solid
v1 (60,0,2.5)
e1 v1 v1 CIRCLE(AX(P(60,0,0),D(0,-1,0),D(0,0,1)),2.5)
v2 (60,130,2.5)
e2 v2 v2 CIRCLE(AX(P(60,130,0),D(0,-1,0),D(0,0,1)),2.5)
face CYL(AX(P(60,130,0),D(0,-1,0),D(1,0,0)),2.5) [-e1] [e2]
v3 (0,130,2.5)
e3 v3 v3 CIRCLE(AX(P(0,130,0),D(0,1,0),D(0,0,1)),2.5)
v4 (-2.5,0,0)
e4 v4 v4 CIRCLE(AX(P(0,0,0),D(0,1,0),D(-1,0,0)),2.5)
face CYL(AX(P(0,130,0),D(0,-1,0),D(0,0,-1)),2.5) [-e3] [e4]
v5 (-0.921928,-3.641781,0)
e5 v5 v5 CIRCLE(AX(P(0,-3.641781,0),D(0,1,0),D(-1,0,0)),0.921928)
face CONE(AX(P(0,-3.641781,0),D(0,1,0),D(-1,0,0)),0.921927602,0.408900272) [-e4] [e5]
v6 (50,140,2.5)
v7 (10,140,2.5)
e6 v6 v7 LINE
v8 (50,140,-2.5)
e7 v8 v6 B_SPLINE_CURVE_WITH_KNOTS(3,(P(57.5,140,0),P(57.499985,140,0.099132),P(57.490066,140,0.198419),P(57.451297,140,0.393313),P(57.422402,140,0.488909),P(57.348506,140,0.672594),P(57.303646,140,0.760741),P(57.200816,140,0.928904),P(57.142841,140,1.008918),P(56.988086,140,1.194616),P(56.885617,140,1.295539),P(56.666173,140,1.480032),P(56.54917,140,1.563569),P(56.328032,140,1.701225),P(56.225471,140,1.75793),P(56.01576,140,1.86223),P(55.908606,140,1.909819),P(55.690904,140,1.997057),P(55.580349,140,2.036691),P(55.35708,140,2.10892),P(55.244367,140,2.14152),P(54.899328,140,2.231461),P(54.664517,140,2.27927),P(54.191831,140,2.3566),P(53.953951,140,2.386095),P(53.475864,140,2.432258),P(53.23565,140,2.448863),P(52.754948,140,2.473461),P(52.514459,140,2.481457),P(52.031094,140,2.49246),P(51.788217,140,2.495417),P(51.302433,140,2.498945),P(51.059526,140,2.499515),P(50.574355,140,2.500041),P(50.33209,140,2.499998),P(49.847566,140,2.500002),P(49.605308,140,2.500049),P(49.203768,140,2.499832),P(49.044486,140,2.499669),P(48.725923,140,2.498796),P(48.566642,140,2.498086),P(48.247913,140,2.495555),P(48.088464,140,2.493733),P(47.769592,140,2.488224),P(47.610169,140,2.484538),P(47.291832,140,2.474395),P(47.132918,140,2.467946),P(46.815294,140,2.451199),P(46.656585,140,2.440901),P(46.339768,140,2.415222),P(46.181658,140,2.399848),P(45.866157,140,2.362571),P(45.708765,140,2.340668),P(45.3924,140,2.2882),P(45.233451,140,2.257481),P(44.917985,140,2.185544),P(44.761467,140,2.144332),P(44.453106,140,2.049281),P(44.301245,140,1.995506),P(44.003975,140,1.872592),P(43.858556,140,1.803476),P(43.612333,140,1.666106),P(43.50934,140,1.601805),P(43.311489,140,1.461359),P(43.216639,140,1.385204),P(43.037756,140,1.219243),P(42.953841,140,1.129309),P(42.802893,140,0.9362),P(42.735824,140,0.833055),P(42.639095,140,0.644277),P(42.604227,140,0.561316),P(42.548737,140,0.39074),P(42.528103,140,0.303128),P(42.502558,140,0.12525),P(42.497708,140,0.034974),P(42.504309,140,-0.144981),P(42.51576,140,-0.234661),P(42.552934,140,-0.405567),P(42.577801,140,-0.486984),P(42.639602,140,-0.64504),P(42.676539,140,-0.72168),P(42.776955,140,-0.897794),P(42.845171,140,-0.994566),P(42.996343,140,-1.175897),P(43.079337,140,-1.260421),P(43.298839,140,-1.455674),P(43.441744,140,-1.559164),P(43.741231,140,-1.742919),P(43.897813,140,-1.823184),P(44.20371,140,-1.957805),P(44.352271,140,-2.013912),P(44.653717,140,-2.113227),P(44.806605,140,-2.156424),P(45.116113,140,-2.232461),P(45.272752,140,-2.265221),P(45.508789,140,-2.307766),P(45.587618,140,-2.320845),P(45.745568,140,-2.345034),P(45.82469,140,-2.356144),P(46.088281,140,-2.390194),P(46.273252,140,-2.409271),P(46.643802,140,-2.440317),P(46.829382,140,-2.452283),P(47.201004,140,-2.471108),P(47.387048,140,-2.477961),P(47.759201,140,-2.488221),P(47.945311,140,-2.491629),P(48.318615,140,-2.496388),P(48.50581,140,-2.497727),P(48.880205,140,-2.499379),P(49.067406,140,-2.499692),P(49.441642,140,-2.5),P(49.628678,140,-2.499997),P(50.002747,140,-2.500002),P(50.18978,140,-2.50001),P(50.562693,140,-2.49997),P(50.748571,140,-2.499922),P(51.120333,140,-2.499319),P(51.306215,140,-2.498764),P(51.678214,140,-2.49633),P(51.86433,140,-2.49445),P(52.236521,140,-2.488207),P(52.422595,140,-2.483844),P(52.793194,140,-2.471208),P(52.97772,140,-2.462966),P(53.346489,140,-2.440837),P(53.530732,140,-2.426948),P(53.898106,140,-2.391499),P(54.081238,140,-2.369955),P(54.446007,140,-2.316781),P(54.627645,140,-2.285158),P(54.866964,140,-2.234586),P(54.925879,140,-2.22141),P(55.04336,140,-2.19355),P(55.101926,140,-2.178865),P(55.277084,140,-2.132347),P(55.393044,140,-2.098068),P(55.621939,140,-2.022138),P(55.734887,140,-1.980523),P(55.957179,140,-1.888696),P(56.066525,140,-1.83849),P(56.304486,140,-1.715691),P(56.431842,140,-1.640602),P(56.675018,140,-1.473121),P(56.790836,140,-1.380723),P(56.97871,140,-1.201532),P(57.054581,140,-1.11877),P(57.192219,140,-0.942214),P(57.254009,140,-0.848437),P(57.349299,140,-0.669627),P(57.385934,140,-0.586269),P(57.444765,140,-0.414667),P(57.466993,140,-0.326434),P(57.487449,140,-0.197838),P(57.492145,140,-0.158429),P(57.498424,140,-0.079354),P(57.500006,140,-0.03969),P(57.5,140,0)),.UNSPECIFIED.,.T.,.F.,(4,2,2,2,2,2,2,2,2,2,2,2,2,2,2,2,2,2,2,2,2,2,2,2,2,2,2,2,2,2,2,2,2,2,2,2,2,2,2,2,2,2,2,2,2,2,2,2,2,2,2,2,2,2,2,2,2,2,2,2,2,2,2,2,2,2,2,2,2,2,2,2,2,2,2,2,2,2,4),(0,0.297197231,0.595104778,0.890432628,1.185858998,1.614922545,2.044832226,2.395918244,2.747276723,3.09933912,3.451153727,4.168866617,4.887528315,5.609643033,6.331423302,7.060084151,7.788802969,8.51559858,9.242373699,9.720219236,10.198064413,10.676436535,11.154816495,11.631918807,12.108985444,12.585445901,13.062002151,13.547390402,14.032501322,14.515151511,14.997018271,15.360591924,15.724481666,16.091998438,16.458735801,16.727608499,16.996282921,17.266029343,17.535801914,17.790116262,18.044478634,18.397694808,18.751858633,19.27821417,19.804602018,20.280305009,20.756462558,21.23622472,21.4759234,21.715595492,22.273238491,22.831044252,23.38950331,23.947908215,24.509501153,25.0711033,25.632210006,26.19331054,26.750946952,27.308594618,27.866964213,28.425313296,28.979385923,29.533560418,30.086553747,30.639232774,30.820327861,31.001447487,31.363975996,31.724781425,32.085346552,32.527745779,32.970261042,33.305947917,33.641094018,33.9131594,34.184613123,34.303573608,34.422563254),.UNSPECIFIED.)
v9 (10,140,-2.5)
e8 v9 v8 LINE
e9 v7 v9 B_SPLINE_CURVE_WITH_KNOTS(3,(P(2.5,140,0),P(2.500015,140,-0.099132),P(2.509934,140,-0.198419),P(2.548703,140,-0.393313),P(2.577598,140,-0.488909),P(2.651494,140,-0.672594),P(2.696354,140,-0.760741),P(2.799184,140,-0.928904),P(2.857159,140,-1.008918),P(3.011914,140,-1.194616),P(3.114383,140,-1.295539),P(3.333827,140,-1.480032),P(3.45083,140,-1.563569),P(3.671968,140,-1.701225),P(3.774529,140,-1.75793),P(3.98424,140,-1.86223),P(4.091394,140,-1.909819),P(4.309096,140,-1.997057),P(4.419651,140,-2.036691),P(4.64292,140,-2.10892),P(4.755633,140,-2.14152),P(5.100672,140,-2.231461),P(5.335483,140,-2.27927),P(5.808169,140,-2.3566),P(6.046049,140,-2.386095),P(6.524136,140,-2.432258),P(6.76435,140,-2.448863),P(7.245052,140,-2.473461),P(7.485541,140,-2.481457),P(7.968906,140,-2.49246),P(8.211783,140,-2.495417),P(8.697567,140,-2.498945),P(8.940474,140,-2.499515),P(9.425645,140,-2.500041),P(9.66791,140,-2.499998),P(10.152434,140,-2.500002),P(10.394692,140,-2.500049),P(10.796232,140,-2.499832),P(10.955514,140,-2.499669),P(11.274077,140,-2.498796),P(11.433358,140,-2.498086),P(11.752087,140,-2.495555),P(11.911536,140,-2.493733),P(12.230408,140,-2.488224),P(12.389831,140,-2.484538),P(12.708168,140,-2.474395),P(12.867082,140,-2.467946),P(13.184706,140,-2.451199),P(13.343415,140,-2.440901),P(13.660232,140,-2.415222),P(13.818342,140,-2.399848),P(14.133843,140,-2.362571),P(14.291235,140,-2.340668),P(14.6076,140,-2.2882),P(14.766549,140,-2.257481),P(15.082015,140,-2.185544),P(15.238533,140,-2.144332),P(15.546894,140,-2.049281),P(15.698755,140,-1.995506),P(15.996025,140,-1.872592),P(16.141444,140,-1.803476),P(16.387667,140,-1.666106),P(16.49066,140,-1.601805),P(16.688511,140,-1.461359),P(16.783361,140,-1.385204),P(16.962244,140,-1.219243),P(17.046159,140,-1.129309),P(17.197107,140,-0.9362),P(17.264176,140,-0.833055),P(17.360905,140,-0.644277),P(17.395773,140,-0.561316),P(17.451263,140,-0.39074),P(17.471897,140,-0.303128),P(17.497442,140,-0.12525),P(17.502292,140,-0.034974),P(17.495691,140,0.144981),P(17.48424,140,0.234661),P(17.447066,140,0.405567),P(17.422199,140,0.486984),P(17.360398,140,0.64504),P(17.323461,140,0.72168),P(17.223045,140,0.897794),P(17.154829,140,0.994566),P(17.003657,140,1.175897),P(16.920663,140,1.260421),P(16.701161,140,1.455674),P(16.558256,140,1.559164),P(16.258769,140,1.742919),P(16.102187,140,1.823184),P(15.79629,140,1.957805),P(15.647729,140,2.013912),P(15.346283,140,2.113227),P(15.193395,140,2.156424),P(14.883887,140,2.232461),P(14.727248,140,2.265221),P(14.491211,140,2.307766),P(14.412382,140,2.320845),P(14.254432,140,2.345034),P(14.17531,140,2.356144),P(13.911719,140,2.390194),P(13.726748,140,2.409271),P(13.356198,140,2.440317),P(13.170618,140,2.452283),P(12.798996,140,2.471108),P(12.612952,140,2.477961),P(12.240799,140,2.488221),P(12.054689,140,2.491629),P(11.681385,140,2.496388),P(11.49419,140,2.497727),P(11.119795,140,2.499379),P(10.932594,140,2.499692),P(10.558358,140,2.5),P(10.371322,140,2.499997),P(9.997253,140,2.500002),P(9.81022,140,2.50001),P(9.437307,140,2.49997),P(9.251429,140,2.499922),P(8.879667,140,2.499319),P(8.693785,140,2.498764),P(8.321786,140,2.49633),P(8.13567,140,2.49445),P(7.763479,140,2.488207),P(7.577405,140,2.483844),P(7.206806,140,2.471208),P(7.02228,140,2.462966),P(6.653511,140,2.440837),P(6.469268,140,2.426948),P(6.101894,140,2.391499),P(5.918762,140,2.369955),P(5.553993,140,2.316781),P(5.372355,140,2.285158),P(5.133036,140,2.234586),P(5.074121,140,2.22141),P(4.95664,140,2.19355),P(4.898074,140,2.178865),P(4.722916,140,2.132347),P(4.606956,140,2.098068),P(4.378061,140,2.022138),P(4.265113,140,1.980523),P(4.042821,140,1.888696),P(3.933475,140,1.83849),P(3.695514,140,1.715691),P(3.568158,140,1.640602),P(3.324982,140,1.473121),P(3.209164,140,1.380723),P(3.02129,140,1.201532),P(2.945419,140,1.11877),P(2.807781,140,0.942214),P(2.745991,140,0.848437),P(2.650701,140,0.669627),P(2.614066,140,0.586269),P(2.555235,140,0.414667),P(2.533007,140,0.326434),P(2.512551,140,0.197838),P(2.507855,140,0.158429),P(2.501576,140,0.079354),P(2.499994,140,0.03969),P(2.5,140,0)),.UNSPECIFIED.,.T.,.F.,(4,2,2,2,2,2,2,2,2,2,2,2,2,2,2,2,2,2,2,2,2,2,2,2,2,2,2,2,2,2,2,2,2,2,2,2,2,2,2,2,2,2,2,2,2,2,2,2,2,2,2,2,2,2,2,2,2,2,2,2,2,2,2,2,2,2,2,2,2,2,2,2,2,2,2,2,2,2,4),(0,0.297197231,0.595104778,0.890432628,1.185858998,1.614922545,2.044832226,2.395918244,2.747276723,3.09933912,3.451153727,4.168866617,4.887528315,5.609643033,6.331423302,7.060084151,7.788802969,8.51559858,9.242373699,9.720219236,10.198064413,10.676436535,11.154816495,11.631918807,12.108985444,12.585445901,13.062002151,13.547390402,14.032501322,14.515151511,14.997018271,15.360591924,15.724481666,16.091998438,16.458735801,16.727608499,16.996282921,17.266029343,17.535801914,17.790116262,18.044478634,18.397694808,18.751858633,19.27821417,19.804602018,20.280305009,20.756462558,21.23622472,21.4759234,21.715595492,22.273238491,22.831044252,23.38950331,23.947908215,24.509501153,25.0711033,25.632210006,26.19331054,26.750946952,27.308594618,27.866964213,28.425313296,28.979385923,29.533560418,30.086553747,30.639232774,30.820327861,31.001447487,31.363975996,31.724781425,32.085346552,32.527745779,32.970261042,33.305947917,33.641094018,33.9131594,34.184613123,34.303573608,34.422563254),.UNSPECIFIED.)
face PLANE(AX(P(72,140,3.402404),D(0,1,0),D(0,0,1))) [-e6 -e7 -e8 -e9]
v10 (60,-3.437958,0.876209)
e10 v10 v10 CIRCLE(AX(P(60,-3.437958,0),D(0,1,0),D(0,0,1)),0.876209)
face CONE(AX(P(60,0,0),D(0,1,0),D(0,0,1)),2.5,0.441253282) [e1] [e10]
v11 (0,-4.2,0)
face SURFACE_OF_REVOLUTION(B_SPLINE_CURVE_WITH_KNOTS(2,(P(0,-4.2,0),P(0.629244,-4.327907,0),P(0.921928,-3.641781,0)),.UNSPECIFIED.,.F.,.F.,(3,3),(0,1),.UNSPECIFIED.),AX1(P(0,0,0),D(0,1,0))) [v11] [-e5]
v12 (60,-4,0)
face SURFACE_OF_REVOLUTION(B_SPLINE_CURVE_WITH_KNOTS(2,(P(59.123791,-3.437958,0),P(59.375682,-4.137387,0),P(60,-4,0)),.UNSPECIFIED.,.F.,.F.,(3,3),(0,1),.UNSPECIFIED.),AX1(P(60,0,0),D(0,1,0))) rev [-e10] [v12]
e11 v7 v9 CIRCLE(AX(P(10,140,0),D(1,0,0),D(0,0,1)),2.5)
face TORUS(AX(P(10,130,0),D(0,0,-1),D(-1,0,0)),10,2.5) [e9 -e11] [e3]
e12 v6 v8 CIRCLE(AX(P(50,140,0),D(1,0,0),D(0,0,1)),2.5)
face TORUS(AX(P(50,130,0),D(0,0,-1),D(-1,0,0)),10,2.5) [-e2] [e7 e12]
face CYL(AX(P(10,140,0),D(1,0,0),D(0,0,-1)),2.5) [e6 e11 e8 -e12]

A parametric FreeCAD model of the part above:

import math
import FreeCAD as App
import Part
import Sketcher

V = App.Vector
Q = App.Units.Quantity

doc = App.newDocument("Part")
body = doc.addObject("PartDesign::Body", "Body")

sketch1 = body.newObject("Sketcher::SketchObject", "Sketch")
sketch1.AttachmentSupport = (doc.getObject("XZ_Plane"), [""])
sketch1.MapMode = "FlatFace"
sketch1.addGeometry(Part.Circle(V(0, 0, 0), V(0, 0, 1), 2.5), False)
sketch1.addConstraint([
    Sketcher.Constraint("Coincident", 0, 3, -1, 1),
    Sketcher.Constraint("Diameter", 0, Q("5 mm")),
])

sketch2 = body.newObject("Sketcher::SketchObject", "Sketch001")
sketch2.AttachmentSupport = (doc.getObject("XY_Plane"), [""])
sketch2.MapMode = "FlatFace"
sketch2.addGeometry([
    Part.LineSegment(V(0, 0, 0), V(0, 130, 0)),
    Part.ArcOfCircle(Part.Circle(V(10, 130, 0), V(0, 0, 1), 10), math.radians(90), math.radians(180)),
    Part.LineSegment(V(10, 140, 0), V(50, 140, 0)),
    Part.ArcOfCircle(Part.Circle(V(50, 130, 0), V(0, 0, 1), 10), math.radians(0), math.radians(90)),
    Part.LineSegment(V(60, 130, 0), V(60, 0, 0)),
], False)
sketch2.addConstraint([
    Sketcher.Constraint("Tangent", 0, 2, 1, 2),
    Sketcher.Constraint("Tangent", 1, 1, 2, 1),
    Sketcher.Constraint("Tangent", 2, 2, 3, 2),
    Sketcher.Constraint("Tangent", 3, 1, 4, 1),
    Sketcher.Constraint("Vertical", 0),
    Sketcher.Constraint("Horizontal", 2),
    Sketcher.Constraint("Vertical", 4),
    Sketcher.Constraint("Coincident", 0, 1, -1, 1),
    Sketcher.Constraint("Equal", 1, 3),
    Sketcher.Constraint("PointOnObject", 4, 2, -1),
    Sketcher.Constraint("Radius", 1, Q("10 mm")),
    Sketcher.Constraint("DistanceX", 2, 1, 2, 2, Q("40 mm")),
    Sketcher.Constraint("DistanceY", 0, 1, 0, 2, Q("130 mm")),
])
doc.recompute()

additivepipe = body.newObject("PartDesign::AdditivePipe", "AdditivePipe")
additivepipe.Profile = sketch1
additivepipe.Spine = (sketch2, ["Edge1", "Edge2", "Edge3", "Edge4", "Edge5"])

sketch3 = body.newObject("Sketcher::SketchObject", "Sketch002")
sketch3.AttachmentSupport = (doc.getObject("XY_Plane"), [""])
sketch3.MapMode = "FlatFace"
sketch3.addGeometry([
    Part.LineSegment(V(0, 0, 0), V(0, -4.2, 0)),
    Part.BSplineCurve([V(0.921928, -3.641781, 0), V(0.629244, -4.327907, 0), V(0, -4.2, 0)], [3, 3], [0, 1], False, 2, [1, 1, 1], False),
    Part.LineSegment(V(0.921928, -3.641781, 0), V(2.5, 0, 0)),
    Part.LineSegment(V(2.5, 0, 0), V(0, 0, 0)),
], False)
sketch3.addConstraint([
    Sketcher.Constraint("Block", 1),
    Sketcher.Constraint("Coincident", 0, 2, 1, 2),
    Sketcher.Constraint("Coincident", 1, 1, 2, 1),
    Sketcher.Constraint("Coincident", 2, 2, 3, 1),
    Sketcher.Constraint("Coincident", 3, 2, 0, 1),
    Sketcher.Constraint("Vertical", 0),
    Sketcher.Constraint("Horizontal", 3),
    Sketcher.Constraint("PointOnObject", 2, 2, -1),
    Sketcher.Constraint("DistanceX", 3, 2, 3, 1, Q("2.5 mm")),
])
revolution = body.newObject("PartDesign::Revolution", "Revolution")
revolution.Profile = sketch3
revolution.ReferenceAxis = (sketch3, ["V_Axis"])
revolution.Angle = 360

sketch4 = body.newObject("Sketcher::SketchObject", "Sketch003")
sketch4.AttachmentSupport = (doc.getObject("XY_Plane"), [""])
sketch4.MapMode = "FlatFace"
sketch4.addGeometry([
    Part.LineSegment(V(60, 0, 0), V(57.5, 0, 0)),
    Part.LineSegment(V(57.5, 0, 0), V(59.123791, -3.437958, 0)),
    Part.BSplineCurve([V(59.123791, -3.437958, 0), V(59.375682, -4.137387, 0), V(60, -4, 0)], [3, 3], [0, 1], False, 2, [1, 1, 1], False),
    Part.LineSegment(V(60, -4, 0), V(60, 0, 0)),
], False)
sketch4.addGeometry(Part.LineSegment(V(60, 0, 0), V(60, -4, 0)), True)
sketch4.addConstraint([
    Sketcher.Constraint("Block", 2),
    Sketcher.Constraint("Coincident", 0, 2, 1, 1),
    Sketcher.Constraint("Coincident", 1, 2, 2, 1),
    Sketcher.Constraint("Coincident", 2, 2, 3, 1),
    Sketcher.Constraint("Coincident", 3, 2, 0, 1),
    Sketcher.Constraint("Horizontal", 0),
    Sketcher.Constraint("Vertical", 3),
    Sketcher.Constraint("Vertical", 4),
    Sketcher.Constraint("Coincident", 4, 1, 3, 2),
    Sketcher.Constraint("PointOnObject", 0, 2, -1),
    Sketcher.Constraint("Equal", 3, 4),
    Sketcher.Constraint("DistanceX", 0, 2, 0, 1, Q("2.5 mm")),
])
revolution2 = body.newObject("PartDesign::Revolution", "Revolution001")
revolution2.Profile = sketch4
revolution2.ReferenceAxis = (sketch4, ["Axis0"])
revolution2.Angle = 360

sketch5 = body.newObject("Sketcher::SketchObject", "Sketch004")
sketch5.AttachmentSupport = (doc.getObject("YZ_Plane"), [""])
sketch5.MapMode = "FlatFace"
sketch5.addGeometry([
    Part.LineSegment(V(144.3, 3.4, 0), V(140, 3.4, 0)),
    Part.LineSegment(V(140, 3.4, 0), V(140, -3.1, 0)),
    Part.LineSegment(V(140, -3.1, 0), V(144.3, -3.1, 0)),
    Part.LineSegment(V(144.3, -3.1, 0), V(144.3, 3.4, 0)),
], False)
sketch5.addConstraint([
    Sketcher.Constraint("Coincident", 0, 2, 1, 1),
    Sketcher.Constraint("Coincident", 1, 2, 2, 1),
    Sketcher.Constraint("Coincident", 2, 2, 3, 1),
    Sketcher.Constraint("Coincident", 3, 2, 0, 1),
    Sketcher.Constraint("Horizontal", 0),
    Sketcher.Constraint("Vertical", 1),
    Sketcher.Constraint("Horizontal", 2),
    Sketcher.Constraint("Vertical", 3),
    Sketcher.Constraint("DistanceX", -1, 1, 0, 2, Q("140 mm")),
    Sketcher.Constraint("DistanceX", 0, 2, 0, 1, Q("4.322109 mm")),
    Sketcher.Constraint("DistanceY", 1, 2, 1, 1, Q("6.517783 mm")),
    Sketcher.Constraint("DistanceY", 1, 2, -1, 1, Q("3.115379 mm")),
])
pocket1 = body.newObject("PartDesign::Pocket", "Pocket")
pocket1.Profile = sketch5
pocket1.Length = 72
pocket1.Reversed = True

doc.recompute()
